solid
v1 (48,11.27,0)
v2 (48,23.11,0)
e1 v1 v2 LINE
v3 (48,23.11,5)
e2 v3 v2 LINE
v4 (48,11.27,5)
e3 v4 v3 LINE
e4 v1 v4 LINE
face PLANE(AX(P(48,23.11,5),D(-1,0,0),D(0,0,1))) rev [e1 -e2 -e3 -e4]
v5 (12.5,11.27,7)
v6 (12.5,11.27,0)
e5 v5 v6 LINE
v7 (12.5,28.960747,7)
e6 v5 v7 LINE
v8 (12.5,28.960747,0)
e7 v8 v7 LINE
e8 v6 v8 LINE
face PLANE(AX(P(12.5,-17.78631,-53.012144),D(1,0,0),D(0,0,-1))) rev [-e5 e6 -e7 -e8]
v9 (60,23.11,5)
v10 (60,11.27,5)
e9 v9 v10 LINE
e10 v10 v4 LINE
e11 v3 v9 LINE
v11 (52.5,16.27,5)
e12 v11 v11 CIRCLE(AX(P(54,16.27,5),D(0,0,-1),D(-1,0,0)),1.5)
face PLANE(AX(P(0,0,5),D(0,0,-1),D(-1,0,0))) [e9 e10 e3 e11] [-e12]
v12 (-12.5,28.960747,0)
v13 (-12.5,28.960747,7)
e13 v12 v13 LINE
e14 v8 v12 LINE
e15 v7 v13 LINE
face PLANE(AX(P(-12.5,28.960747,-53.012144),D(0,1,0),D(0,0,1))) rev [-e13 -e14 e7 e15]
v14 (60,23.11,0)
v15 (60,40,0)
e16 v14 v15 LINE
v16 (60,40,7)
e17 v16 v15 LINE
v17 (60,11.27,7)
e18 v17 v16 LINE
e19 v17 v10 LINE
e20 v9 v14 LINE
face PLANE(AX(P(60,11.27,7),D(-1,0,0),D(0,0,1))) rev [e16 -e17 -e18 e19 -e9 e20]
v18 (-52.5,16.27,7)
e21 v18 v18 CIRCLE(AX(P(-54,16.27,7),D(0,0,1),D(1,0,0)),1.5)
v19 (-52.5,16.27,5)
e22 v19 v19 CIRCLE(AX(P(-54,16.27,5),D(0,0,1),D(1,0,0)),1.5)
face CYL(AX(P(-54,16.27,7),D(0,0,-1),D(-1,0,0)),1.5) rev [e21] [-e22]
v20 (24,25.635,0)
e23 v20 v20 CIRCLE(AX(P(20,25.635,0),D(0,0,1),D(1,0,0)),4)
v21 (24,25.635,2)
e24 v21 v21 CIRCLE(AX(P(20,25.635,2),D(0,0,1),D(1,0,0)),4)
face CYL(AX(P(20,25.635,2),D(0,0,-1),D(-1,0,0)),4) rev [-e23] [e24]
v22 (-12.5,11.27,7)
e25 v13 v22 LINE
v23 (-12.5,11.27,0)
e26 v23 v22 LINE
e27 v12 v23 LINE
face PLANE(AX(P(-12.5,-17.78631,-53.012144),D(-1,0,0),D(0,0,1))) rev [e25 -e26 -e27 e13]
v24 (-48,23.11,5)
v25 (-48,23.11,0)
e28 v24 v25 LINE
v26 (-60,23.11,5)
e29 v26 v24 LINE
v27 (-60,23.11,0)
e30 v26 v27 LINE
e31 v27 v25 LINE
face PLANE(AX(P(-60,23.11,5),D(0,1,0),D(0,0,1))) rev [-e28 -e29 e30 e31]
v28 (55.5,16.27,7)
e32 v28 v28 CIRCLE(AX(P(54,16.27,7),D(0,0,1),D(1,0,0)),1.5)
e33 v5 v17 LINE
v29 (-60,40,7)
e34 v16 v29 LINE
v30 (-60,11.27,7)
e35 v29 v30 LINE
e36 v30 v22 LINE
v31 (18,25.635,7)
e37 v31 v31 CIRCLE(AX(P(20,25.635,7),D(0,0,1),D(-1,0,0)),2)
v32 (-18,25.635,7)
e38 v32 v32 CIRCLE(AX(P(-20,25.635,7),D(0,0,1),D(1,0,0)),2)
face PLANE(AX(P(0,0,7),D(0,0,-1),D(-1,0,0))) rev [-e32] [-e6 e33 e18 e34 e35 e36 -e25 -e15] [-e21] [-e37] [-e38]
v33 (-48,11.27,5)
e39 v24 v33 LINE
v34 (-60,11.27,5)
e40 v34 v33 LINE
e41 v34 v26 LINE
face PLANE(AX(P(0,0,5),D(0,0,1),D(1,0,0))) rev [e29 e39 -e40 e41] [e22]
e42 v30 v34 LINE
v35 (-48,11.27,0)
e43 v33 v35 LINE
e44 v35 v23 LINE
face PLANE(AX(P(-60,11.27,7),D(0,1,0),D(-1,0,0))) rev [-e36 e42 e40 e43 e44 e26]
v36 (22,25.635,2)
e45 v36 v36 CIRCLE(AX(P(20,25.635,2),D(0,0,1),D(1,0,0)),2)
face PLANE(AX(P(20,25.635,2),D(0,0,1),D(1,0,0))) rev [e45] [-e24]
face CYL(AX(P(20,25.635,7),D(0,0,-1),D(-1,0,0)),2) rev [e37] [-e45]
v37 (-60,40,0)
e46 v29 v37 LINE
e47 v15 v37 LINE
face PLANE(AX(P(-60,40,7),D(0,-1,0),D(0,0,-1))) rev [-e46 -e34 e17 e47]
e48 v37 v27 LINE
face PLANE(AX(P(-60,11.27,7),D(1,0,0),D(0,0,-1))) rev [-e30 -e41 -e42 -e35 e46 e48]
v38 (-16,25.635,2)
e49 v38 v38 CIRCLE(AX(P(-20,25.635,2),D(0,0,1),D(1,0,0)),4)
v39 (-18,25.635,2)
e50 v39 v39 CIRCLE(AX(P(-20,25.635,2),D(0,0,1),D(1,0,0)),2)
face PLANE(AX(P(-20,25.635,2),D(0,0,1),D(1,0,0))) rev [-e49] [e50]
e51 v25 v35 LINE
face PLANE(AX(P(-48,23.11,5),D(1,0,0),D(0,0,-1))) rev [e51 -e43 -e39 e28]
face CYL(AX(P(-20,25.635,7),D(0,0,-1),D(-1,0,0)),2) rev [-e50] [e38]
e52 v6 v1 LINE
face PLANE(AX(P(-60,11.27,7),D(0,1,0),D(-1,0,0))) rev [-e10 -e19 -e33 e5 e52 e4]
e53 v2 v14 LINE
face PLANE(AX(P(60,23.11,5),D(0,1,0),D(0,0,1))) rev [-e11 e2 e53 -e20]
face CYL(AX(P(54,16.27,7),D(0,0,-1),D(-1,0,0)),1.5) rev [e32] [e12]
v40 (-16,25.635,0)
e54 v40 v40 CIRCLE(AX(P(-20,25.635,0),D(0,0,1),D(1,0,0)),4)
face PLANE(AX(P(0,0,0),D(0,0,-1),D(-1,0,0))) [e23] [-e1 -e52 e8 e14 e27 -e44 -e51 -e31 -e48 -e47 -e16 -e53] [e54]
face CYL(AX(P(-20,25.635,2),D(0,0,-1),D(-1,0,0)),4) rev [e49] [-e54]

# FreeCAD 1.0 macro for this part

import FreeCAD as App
import Part
import Sketcher
Q = App.Units.Quantity

doc = App.newDocument("Part")
params = doc.addObject("Spreadsheet::Sheet", "Params")
for row, (alias, value) in enumerate([
    ("sketch1_diameter", "3 mm"),
    ("sketch1_diameter2", "4 mm"),
    ("sketch1_width", "120 mm"),
    ("sketch1_height", "28.73 mm"),
    ("pad1_length", "7 mm"),
    ("sketch2_width", "12 mm"),
    ("sketch2_height", "13.95 mm"),
    ("pocket1_length", "5 mm"),
    ("sketch3_width", "25 mm"),
    ("pocket2_length", "7 mm"),
    ("sketch4_diameter", "8 mm"),
    ("pocket3_length", "2 mm"),
], start=1):
    params.set(f"A{row}", alias)
    params.set(f"B{row}", "=" + value)
    params.setAlias(f"B{row}", alias)

body = doc.addObject("PartDesign::Body", "Body")

# Sketch on XY plane
sketch1 = body.newObject("Sketcher::SketchObject", "Sketch")
sketch1.AttachmentSupport = (doc.getObject("XY_Plane"), [""])
sketch1.MapMode = "FlatFace"
sketch1.addGeometry(Part.LineSegment(App.Vector(-60, 40, 0), App.Vector(-60, 11.3, 0)), False)
sketch1.addGeometry(Part.LineSegment(App.Vector(-60, 11.3, 0), App.Vector(60, 11.3, 0)), False)
sketch1.addGeometry(Part.LineSegment(App.Vector(60, 11.3, 0), App.Vector(60, 40, 0)), False)
sketch1.addGeometry(Part.LineSegment(App.Vector(60, 40, 0), App.Vector(-60, 40, 0)), False)
sketch1.addGeometry(Part.Circle(App.Vector(-54, 16.3, 0), App.Vector(0, 0, 1), 1.5), False)
sketch1.addGeometry(Part.Circle(App.Vector(54, 16.3, 0), App.Vector(0, 0, 1), 1.5), False)
sketch1.addGeometry(Part.Circle(App.Vector(-20, 25.6, 0), App.Vector(0, 0, 1), 2), False)
sketch1.addGeometry(Part.Circle(App.Vector(20, 25.6, 0), App.Vector(0, 0, 1), 2), False)
sketch1.addConstraint(Sketcher.Constraint("Coincident", 0, 2, 1, 1))
sketch1.addConstraint(Sketcher.Constraint("Coincident", 1, 2, 2, 1))
sketch1.addConstraint(Sketcher.Constraint("Coincident", 2, 2, 3, 1))
sketch1.addConstraint(Sketcher.Constraint("Coincident", 3, 2, 0, 1))
sketch1.addConstraint(Sketcher.Constraint("Vertical", 0))
sketch1.addConstraint(Sketcher.Constraint("Horizontal", 1))
sketch1.addConstraint(Sketcher.Constraint("Vertical", 2))
sketch1.addConstraint(Sketcher.Constraint("Horizontal", 3))
sketch1.addConstraint(Sketcher.Constraint("Equal", 4, 5))
sketch1.addConstraint(Sketcher.Constraint("Equal", 6, 7))
sketch1.addConstraint(Sketcher.Constraint("Symmetric", 4, 3, 5, 3, -2))
sketch1.addConstraint(Sketcher.Constraint("Symmetric", 6, 3, 7, 3, -2))
sketch1.addConstraint(Sketcher.Constraint("Diameter", 4, Q("3 mm")))
sketch1.addConstraint(Sketcher.Constraint("Diameter", 6, Q("4 mm")))
sketch1.addConstraint(Sketcher.Constraint("DistanceX", 1, 1, 1, 2, Q("120 mm")))
sketch1.addConstraint(Sketcher.Constraint("DistanceX", 4, 3, -1, 1, Q("54 mm")))
sketch1.addConstraint(Sketcher.Constraint("DistanceX", 6, 3, -1, 1, Q("20 mm")))
sketch1.addConstraint(Sketcher.Constraint("DistanceX", 0, 2, -1, 1, Q("60 mm")))
sketch1.addConstraint(Sketcher.Constraint("DistanceY", -1, 1, 2, 2, Q("40 mm")))
sketch1.addConstraint(Sketcher.Constraint("DistanceY", 0, 2, 4, 3, Q("5 mm")))
sketch1.addConstraint(Sketcher.Constraint("DistanceY", 0, 2, 0, 1, Q("28.73 mm")))
sketch1.addConstraint(Sketcher.Constraint("DistanceY", -1, 1, 6, 3, Q("25.635 mm")))
sketch1.setExpression("Constraints[12]", "Params.sketch1_diameter")
sketch1.setExpression("Constraints[13]", "Params.sketch1_diameter2")
sketch1.setExpression("Constraints[14]", "Params.sketch1_width")
sketch1.setExpression("Constraints[20]", "Params.sketch1_height")
pad1 = body.newObject("PartDesign::Pad", "Pad")
pad1.Profile = sketch1
pad1.setExpression("Length", "Params.pad1_length")

# Sketch on XY plane
sketch2 = body.newObject("Sketcher::SketchObject", "Sketch001")
sketch2.AttachmentSupport = (doc.getObject("XY_Plane"), [""])
sketch2.MapMode = "FlatFace"
sketch2.addGeometry(Part.LineSegment(App.Vector(60, 23, 0), App.Vector(60, 9, 0)), False)
sketch2.addGeometry(Part.LineSegment(App.Vector(60, 9, 0), App.Vector(48, 9, 0)), False)
sketch2.addGeometry(Part.LineSegment(App.Vector(48, 9, 0), App.Vector(48, 23, 0)), False)
sketch2.addGeometry(Part.LineSegment(App.Vector(48, 23, 0), App.Vector(60, 23, 0)), False)
sketch2.addGeometry(Part.LineSegment(App.Vector(-48, 23, 0), App.Vector(-48, 9, 0)), False)
sketch2.addGeometry(Part.LineSegment(App.Vector(-48, 9, 0), App.Vector(-60, 9, 0)), False)
sketch2.addGeometry(Part.LineSegment(App.Vector(-60, 9, 0), App.Vector(-60, 23, 0)), False)
sketch2.addGeometry(Part.LineSegment(App.Vector(-60, 23, 0), App.Vector(-48, 23, 0)), False)
sketch2.addConstraint(Sketcher.Constraint("Coincident", 0, 2, 1, 1))
sketch2.addConstraint(Sketcher.Constraint("Coincident", 1, 2, 2, 1))
sketch2.addConstraint(Sketcher.Constraint("Coincident", 2, 2, 3, 1))
sketch2.addConstraint(Sketcher.Constraint("Coincident", 3, 2, 0, 1))
sketch2.addConstraint(Sketcher.Constraint("Coincident", 4, 2, 5, 1))
sketch2.addConstraint(Sketcher.Constraint("Coincident", 5, 2, 6, 1))
sketch2.addConstraint(Sketcher.Constraint("Coincident", 6, 2, 7, 1))
sketch2.addConstraint(Sketcher.Constraint("Coincident", 7, 2, 4, 1))
sketch2.addConstraint(Sketcher.Constraint("Vertical", 0))
sketch2.addConstraint(Sketcher.Constraint("Horizontal", 1))
sketch2.addConstraint(Sketcher.Constraint("Vertical", 2))
sketch2.addConstraint(Sketcher.Constraint("Horizontal", 3))
sketch2.addConstraint(Sketcher.Constraint("Vertical", 4))
sketch2.addConstraint(Sketcher.Constraint("Horizontal", 5))
sketch2.addConstraint(Sketcher.Constraint("Vertical", 6))
sketch2.addConstraint(Sketcher.Constraint("Horizontal", 7))
sketch2.addConstraint(Sketcher.Constraint("Symmetric", 1, 2, 4, 2, -2))
sketch2.addConstraint(Sketcher.Constraint("Symmetric", 3, 2, 6, 2, -2))
sketch2.addConstraint(Sketcher.Constraint("DistanceX", 1, 2, 1, 1, Q("12 mm")))
sketch2.addConstraint(Sketcher.Constraint("DistanceX", -1, 1, 0, 2, Q("60 mm")))
sketch2.addConstraint(Sketcher.Constraint("DistanceY", 0, 2, 0, 1, Q("13.95 mm")))
sketch2.addConstraint(Sketcher.Constraint("DistanceY", -1, 1, 0, 2, Q("9.16 mm")))
sketch2.setExpression("Constraints[18]", "Params.sketch2_width")
sketch2.setExpression("Constraints[20]", "Params.sketch2_height")
pocket1 = body.newObject("PartDesign::Pocket", "Pocket")
pocket1.Profile = sketch2
pocket1.setExpression("Length", "Params.pocket1_length")
pocket1.Reversed = True

# Sketch on XY plane
sketch3 = body.newObject("Sketcher::SketchObject", "Sketch002")
sketch3.AttachmentSupport = (doc.getObject("XY_Plane"), [""])
sketch3.MapMode = "FlatFace"
sketch3.AttachmentOffset = App.Placement(App.Vector(0, 0, 7), App.Rotation())
sketch3.addGeometry(Part.LineSegment(App.Vector(-12, 29, 0), App.Vector(-12, -18, 0)), False)
sketch3.addGeometry(Part.LineSegment(App.Vector(-12, -18, 0), App.Vector(12, -18, 0)), False)
sketch3.addGeometry(Part.LineSegment(App.Vector(12, -18, 0), App.Vector(12, 29, 0)), False)
sketch3.addGeometry(Part.LineSegment(App.Vector(12, 29, 0), App.Vector(-12, 29, 0)), False)
sketch3.addConstraint(Sketcher.Constraint("Coincident", 0, 2, 1, 1))
sketch3.addConstraint(Sketcher.Constraint("Coincident", 1, 2, 2, 1))
sketch3.addConstraint(Sketcher.Constraint("Coincident", 2, 2, 3, 1))
sketch3.addConstraint(Sketcher.Constraint("Coincident", 3, 2, 0, 1))
sketch3.addConstraint(Sketcher.Constraint("Vertical", 0))
sketch3.addConstraint(Sketcher.Constraint("Horizontal", 1))
sketch3.addConstraint(Sketcher.Constraint("Vertical", 2))
sketch3.addConstraint(Sketcher.Constraint("Horizontal", 3))
sketch3.addConstraint(Sketcher.Constraint("DistanceX", 1, 1, 1, 2, Q("25 mm")))
sketch3.addConstraint(Sketcher.Constraint("DistanceX", 0, 2, -1, 1, Q("12.5 mm")))
sketch3.addConstraint(Sketcher.Constraint("DistanceY", 0, 2, 0, 1, Q("46.747058 mm")))
sketch3.addConstraint(Sketcher.Constraint("DistanceY", 0, 2, -1, 1, Q("17.78631 mm")))
sketch3.setExpression("Constraints[8]", "Params.sketch3_width")
pocket2 = body.newObject("PartDesign::Pocket", "Pocket001")
pocket2.Profile = sketch3
pocket2.setExpression("Length", "Params.pocket2_length")

# Sketch on XY plane
sketch4 = body.newObject("Sketcher::SketchObject", "Sketch003")
sketch4.AttachmentSupport = (doc.getObject("XY_Plane"), [""])
sketch4.MapMode = "FlatFace"
sketch4.addGeometry(Part.Circle(App.Vector(20, 25.6, 0), App.Vector(0, 0, 1), 4), False)
sketch4.addGeometry(Part.Circle(App.Vector(-20, 25.6, 0), App.Vector(0, 0, 1), 4), False)
sketch4.addConstraint(Sketcher.Constraint("Equal", 0, 1))
sketch4.addConstraint(Sketcher.Constraint("Symmetric", 0, 3, 1, 3, -2))
sketch4.addConstraint(Sketcher.Constraint("Diameter", 0, Q("8 mm")))
sketch4.addConstraint(Sketcher.Constraint("DistanceX", -1, 1, 0, 3, Q("20 mm")))
sketch4.addConstraint(Sketcher.Constraint("DistanceY", -1, 1, 0, 3, Q("25.635 mm")))
sketch4.setExpression("Constraints[2]", "Params.sketch4_diameter")
pocket3 = body.newObject("PartDesign::Pocket", "Pocket002")
pocket3.Profile = sketch4
pocket3.setExpression("Length", "Params.pocket3_length")
pocket3.Reversed = True

doc.recompute()
